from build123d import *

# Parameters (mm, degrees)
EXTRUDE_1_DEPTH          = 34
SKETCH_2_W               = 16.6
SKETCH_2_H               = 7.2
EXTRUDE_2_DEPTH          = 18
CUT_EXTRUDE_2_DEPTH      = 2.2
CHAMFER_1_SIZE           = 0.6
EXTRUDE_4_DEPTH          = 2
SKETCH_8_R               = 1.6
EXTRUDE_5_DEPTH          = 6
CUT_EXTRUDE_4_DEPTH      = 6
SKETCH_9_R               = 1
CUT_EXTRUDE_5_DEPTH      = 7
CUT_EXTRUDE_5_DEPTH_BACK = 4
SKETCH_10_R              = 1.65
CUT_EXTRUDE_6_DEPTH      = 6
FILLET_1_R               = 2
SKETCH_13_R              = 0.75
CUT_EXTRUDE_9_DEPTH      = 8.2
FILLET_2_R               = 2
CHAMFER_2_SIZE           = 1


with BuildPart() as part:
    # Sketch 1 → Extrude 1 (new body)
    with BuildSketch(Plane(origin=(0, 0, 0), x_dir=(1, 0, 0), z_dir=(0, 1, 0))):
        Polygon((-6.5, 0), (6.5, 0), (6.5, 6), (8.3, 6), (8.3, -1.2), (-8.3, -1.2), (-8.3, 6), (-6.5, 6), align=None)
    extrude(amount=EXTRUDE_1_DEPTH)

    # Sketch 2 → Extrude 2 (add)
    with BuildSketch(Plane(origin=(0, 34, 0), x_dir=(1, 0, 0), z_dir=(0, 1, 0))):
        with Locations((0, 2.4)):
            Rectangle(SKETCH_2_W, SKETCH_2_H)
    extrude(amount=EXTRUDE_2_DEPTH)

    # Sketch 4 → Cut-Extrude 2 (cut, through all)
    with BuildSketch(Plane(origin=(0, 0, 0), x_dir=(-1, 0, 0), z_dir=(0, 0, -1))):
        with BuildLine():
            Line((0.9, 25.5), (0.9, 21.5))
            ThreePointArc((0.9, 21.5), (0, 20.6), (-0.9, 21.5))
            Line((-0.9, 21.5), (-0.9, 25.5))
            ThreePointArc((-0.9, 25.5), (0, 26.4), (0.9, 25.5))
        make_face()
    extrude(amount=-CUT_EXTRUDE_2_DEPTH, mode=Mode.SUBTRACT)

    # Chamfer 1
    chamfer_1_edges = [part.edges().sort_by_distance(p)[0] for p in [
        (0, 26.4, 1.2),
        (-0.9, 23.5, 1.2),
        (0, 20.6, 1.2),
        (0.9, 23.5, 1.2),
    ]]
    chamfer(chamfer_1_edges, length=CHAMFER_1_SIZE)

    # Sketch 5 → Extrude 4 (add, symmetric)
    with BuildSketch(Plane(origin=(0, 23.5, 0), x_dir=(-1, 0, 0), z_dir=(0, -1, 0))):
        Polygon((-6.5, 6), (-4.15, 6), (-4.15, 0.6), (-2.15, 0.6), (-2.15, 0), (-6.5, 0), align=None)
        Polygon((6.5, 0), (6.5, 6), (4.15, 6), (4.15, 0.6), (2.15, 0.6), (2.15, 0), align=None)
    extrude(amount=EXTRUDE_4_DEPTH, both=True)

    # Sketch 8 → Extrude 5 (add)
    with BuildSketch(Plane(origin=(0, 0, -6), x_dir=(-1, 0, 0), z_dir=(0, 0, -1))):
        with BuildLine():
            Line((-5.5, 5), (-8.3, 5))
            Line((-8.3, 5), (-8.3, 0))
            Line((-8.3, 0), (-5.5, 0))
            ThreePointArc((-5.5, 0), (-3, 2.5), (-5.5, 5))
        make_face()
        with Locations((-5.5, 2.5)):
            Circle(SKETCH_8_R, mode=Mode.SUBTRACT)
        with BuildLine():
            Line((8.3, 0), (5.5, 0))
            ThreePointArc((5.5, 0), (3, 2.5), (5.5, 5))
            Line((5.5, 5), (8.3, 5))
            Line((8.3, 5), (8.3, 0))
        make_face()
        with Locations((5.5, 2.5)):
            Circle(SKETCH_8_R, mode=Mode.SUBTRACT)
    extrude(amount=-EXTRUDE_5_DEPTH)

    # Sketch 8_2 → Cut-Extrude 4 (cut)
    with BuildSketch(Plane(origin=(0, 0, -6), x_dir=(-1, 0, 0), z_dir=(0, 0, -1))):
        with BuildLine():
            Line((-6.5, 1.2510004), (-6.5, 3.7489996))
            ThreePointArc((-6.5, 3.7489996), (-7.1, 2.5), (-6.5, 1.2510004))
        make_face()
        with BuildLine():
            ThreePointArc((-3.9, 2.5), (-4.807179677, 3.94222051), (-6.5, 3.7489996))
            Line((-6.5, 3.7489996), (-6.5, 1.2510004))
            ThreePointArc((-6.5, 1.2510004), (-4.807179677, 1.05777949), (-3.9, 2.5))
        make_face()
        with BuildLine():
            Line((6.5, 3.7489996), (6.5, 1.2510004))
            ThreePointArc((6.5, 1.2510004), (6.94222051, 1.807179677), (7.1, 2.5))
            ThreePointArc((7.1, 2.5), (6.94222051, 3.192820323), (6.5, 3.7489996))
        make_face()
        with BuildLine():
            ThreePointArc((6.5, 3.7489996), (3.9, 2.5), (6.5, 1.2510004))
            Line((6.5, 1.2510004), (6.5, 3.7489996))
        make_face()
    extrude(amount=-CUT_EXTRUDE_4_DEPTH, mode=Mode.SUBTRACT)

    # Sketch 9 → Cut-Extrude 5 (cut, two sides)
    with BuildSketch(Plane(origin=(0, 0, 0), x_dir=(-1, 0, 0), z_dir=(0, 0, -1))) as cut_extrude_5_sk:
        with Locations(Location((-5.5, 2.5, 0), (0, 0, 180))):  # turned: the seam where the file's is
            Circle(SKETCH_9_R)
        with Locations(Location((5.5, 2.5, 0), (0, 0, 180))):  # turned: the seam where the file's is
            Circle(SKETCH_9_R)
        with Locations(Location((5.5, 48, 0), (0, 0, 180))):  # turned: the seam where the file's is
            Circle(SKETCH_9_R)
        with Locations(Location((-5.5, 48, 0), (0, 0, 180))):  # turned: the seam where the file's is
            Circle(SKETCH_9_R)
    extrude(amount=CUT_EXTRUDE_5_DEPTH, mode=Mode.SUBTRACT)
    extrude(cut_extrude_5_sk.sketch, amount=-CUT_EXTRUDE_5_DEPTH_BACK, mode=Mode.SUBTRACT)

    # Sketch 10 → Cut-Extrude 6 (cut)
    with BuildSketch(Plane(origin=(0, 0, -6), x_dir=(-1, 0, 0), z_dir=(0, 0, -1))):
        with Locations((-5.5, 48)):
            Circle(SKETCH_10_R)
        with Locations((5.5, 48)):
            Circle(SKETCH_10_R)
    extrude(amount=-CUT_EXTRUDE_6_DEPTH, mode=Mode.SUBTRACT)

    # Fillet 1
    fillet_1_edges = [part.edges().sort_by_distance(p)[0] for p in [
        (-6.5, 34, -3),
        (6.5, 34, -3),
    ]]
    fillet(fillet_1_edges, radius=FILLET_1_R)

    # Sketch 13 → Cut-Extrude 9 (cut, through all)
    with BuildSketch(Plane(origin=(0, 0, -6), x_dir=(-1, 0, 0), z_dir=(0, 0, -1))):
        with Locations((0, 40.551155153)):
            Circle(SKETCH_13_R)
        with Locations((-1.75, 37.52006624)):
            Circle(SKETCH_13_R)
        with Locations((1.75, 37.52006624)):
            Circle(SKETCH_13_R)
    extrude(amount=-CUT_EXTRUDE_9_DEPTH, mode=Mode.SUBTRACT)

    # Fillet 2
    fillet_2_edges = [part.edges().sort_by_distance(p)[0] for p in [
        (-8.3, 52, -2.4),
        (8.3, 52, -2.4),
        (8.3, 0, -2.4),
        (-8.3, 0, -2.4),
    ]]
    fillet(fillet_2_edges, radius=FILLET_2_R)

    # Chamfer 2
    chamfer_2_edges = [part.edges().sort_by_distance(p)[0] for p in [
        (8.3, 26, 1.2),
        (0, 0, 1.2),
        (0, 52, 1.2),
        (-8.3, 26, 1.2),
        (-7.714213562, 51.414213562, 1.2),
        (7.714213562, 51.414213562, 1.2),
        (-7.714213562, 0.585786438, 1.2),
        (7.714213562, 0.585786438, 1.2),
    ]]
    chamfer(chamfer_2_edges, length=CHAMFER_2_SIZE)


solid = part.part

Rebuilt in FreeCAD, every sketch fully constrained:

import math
import FreeCAD as App
import Part
import Sketcher


def edges_at(feature, points):
    """Names of the edges that pass closest to the given points."""
    edges = feature.Shape.Edges
    near = lambda p: min(range(len(edges)), key=lambda i: edges[i].distToShape(Part.Vertex(*p))[0])
    return sorted({f"Edge{near(p) + 1}" for p in points})


def add_polygon(sketch, points):
    """Adds a closed chain of lines whose ends are joined by coincident constraints."""
    first, n = sketch.GeometryCount, len(points)
    for a, b in zip(points, points[1:] + points[:1]):
        sketch.addGeometry(Part.LineSegment(App.Vector(*a, 0), App.Vector(*b, 0)), False)
    for i in range(n):
        sketch.addConstraint(Sketcher.Constraint("Coincident", first + i, 2, first + (i + 1) % n, 1))

doc = App.newDocument("Part")
body = doc.addObject("PartDesign::Body", "Body")

# Sketch on XZ plane
sketch1 = doc.addObject("Sketcher::SketchObject", "Sketch")
body.addObject(sketch1)
sketch1.AttachmentSupport = (doc.XZ_Plane, [""])
sketch1.MapMode = "FlatFace"
add_polygon(sketch1, [(6.5, 0), (-6.5, 0), (-6.5, -6), (-8.3, -6), (-8.3, 1.2), (8.3, 1.2), (8.3, -6), (6.5, -6)])  # lines 0-7
sketch1.addConstraint([
    Sketcher.Constraint("Horizontal", 0),
    Sketcher.Constraint("Vertical", 1),
    Sketcher.Constraint("Horizontal", 2),
    Sketcher.Constraint("Vertical", 3),
    Sketcher.Constraint("Horizontal", 4),
    Sketcher.Constraint("Vertical", 5),
    Sketcher.Constraint("Horizontal", 6),
    Sketcher.Constraint("Vertical", 7),
    Sketcher.Constraint("Symmetric", 0, 2, 7, 2, -1, 1),
    Sketcher.Constraint("Symmetric", 2, 2, 5, 2, -2),
    Sketcher.Constraint("DistanceX", 0, 2, 0, 1, 13.0),
    Sketcher.Constraint("DistanceY", 1, 2, 1, 1, 6.0),
    Sketcher.Constraint("DistanceX", 2, 2, 2, 1, 1.8),
    Sketcher.Constraint("DistanceY", 3, 1, 3, 2, 7.2),
])
pad1 = doc.addObject("PartDesign::Pad", "Pad")
body.addObject(pad1)
pad1.Profile = sketch1
pad1.Length = 34
pad1.Reversed = True

# Sketch on XZ plane
sketch2 = doc.addObject("Sketcher::SketchObject", "Sketch001")
body.addObject(sketch2)
sketch2.AttachmentSupport = (doc.XZ_Plane, [""])
sketch2.MapMode = "FlatFace"
sketch2.AttachmentOffset = App.Placement(App.Vector(0, 0, -34), App.Rotation())
add_polygon(sketch2, [(-8, -6), (-8, 1), (8, 1), (8, -6)])  # lines 0-3
sketch2.addConstraint([
    Sketcher.Constraint("Vertical", 0),
    Sketcher.Constraint("Horizontal", 1),
    Sketcher.Constraint("Vertical", 2),
    Sketcher.Constraint("Horizontal", 3),
    Sketcher.Constraint("DistanceX", 1, 1, 1, 2, 16.6),
    Sketcher.Constraint("DistanceY", 0, 1, 0, 2, 7.2),
    Sketcher.Constraint("DistanceY", 2, 2, -1, 1, 6.0),
    Sketcher.Constraint("DistanceX", 0, 2, -1, 1, 8.3),
])
pad2 = doc.addObject("PartDesign::Pad", "Pad001")
body.addObject(pad2)
pad2.Profile = sketch2
pad2.Length = 18
pad2.Reversed = True

# Sketch on XY plane
sketch3 = doc.addObject("Sketcher::SketchObject", "Sketch002")
body.addObject(sketch3)
sketch3.AttachmentSupport = (doc.XY_Plane, [""])
sketch3.MapMode = "FlatFace"
sketch3.addGeometry([
    Part.LineSegment(App.Vector(-0.9, 21.5, 0), App.Vector(-0.9, 25.5, 0)),
    Part.ArcOfCircle(Part.Circle(App.Vector(0, 25.5, 0), App.Vector(0, 0, 1), 0.9), math.radians(0), math.radians(180)),
    Part.LineSegment(App.Vector(0.9, 25.5, 0), App.Vector(0.9, 21.5, 0)),
    Part.ArcOfCircle(Part.Circle(App.Vector(0, 21.5, 0), App.Vector(0, 0, 1), 0.9), math.radians(180), math.radians(360)),
], False)
sketch3.addConstraint([
    Sketcher.Constraint("Tangent", 0, 2, 1, 2),
    Sketcher.Constraint("Tangent", 1, 1, 2, 1),
    Sketcher.Constraint("Tangent", 2, 2, 3, 2),
    Sketcher.Constraint("Tangent", 3, 1, 0, 1),
    Sketcher.Constraint("Vertical", 0),
    Sketcher.Constraint("Vertical", 2),
    Sketcher.Constraint("PointOnObject", 1, 3, -2),
    Sketcher.Constraint("Radius", 1, 0.9),
    Sketcher.Constraint("DistanceY", 0, 1, 0, 2, 4.0),
    Sketcher.Constraint("DistanceY", -1, 1, 1, 3, 25.5),
])
pocket1 = doc.addObject("PartDesign::Pocket", "Pocket")
body.addObject(pocket1)
pocket1.Profile = sketch3
pocket1.Type = "ThroughAll"
pocket1.Reversed = True
doc.recompute()

chamfer = doc.addObject("PartDesign::Chamfer", "Chamfer")
body.addObject(chamfer)
chamfer.Base = (pocket1, edges_at(pocket1, [
    (0, 26.4, 1.2),
    (-0.9, 23.5, 1.2),
    (0, 20.6, 1.2),
    (0.9, 23.5, 1.2),
]))
chamfer.Size = 0.6

# Sketch on XZ plane
sketch4 = doc.addObject("Sketcher::SketchObject", "Sketch003")
body.addObject(sketch4)
sketch4.AttachmentSupport = (doc.XZ_Plane, [""])
sketch4.MapMode = "FlatFace"
sketch4.AttachmentOffset = App.Placement(App.Vector(0, 0, -23.5), App.Rotation())
add_polygon(sketch4, [(4.2, -6), (6.5, -6), (6.5, 0), (2.1, 0), (2.1, -0.6), (4.2, -0.6)])  # lines 0-5
add_polygon(sketch4, [(-6.5, 0), (-6.5, -6), (-4.2, -6), (-4.2, -0.6), (-2.1, -0.6), (-2.1, 0)])  # lines 6-11
sketch4.addConstraint([
    Sketcher.Constraint("Horizontal", 0),
    Sketcher.Constraint("Vertical", 1),
    Sketcher.Constraint("Horizontal", 2),
    Sketcher.Constraint("Vertical", 3),
    Sketcher.Constraint("Horizontal", 4),
    Sketcher.Constraint("Vertical", 5),
    Sketcher.Constraint("Vertical", 6),
    Sketcher.Constraint("Horizontal", 7),
    Sketcher.Constraint("Vertical", 8),
    Sketcher.Constraint("Horizontal", 9),
    Sketcher.Constraint("Vertical", 10),
    Sketcher.Constraint("Horizontal", 11),
    Sketcher.Constraint("Symmetric", 2, 2, 10, 2, -1, 1),
    Sketcher.Constraint("Symmetric", 0, 2, 6, 2, -2),
    Sketcher.Constraint("Symmetric", 4, 2, 8, 2, -2),
    Sketcher.Constraint("PointOnObject", 1, 2, -1),
    Sketcher.Constraint("DistanceX", 4, 1, 4, 2, 2.0),
    Sketcher.Constraint("DistanceY", 1, 1, 1, 2, 6.0),
    Sketcher.Constraint("DistanceY", 3, 2, 3, 1, 0.6),
    Sketcher.Constraint("DistanceX", 6, 2, 0, 2, 13.0),
    Sketcher.Constraint("DistanceX", 0, 1, 0, 2, 2.35),
])
pad3 = doc.addObject("PartDesign::Pad", "Pad002")
body.addObject(pad3)
pad3.Profile = sketch4
pad3.Length = 4
pad3.Midplane = True

# Sketch on XY plane
sketch5 = doc.addObject("Sketcher::SketchObject", "Sketch004")
body.addObject(sketch5)
sketch5.AttachmentSupport = (doc.XY_Plane, [""])
sketch5.MapMode = "FlatFace"
sketch5.AttachmentOffset = App.Placement(App.Vector(0, 0, -6), App.Rotation())
sketch5.addGeometry([
    Part.LineSegment(App.Vector(5.5, 5, 0), App.Vector(8.3, 5, 0)),  # 0
    Part.LineSegment(App.Vector(8.3, 5, 0), App.Vector(8.3, 0, 0)),  # 1
    Part.LineSegment(App.Vector(8.3, 0, 0), App.Vector(5.5, 0, 0)),  # 2
    Part.ArcOfCircle(Part.Circle(App.Vector(5.5, 2.5, 0), App.Vector(0, 0, 1), 2.5), math.radians(90), math.radians(270)),  # 3
    Part.Circle(App.Vector(5.5, 2.5, 0), App.Vector(0, 0, 1), 1.6),  # 4
    Part.LineSegment(App.Vector(-5.5, 0, 0), App.Vector(-8.3, 0, 0)),  # 5
    Part.LineSegment(App.Vector(-8.3, 0, 0), App.Vector(-8.3, 5, 0)),  # 6
    Part.LineSegment(App.Vector(-8.3, 5, 0), App.Vector(-5.5, 5, 0)),  # 7
    Part.ArcOfCircle(Part.Circle(App.Vector(-5.5, 2.5, 0), App.Vector(0, 0, 1), 2.5), math.radians(-90), math.radians(90)),  # 8
    Part.Circle(App.Vector(-5.5, 2.5, 0), App.Vector(0, 0, 1), 1.6),  # 9
], False)
sketch5.addConstraint([
    Sketcher.Constraint("Coincident", 0, 2, 1, 1),
    Sketcher.Constraint("Coincident", 1, 2, 2, 1),
    Sketcher.Constraint("Tangent", 2, 2, 3, 2),
    Sketcher.Constraint("Tangent", 3, 1, 0, 1),
    Sketcher.Constraint("Coincident", 5, 2, 6, 1),
    Sketcher.Constraint("Coincident", 6, 2, 7, 1),
    Sketcher.Constraint("Tangent", 7, 2, 8, 2),
    Sketcher.Constraint("Tangent", 8, 1, 5, 1),
    Sketcher.Constraint("Horizontal", 0),
    Sketcher.Constraint("Vertical", 1),
    Sketcher.Constraint("Horizontal", 2),
    Sketcher.Constraint("Horizontal", 5),
    Sketcher.Constraint("Vertical", 6),
    Sketcher.Constraint("Horizontal", 7),
    Sketcher.Constraint("Coincident", 4, 3, 3, 3),
    Sketcher.Constraint("Coincident", 9, 3, 8, 3),
    Sketcher.Constraint("Equal", 3, 8),
    Sketcher.Constraint("Equal", 4, 9),
    Sketcher.Constraint("Symmetric", 1, 2, 5, 2, -1, 1),
    Sketcher.Constraint("Symmetric", 3, 3, 8, 3, -2),
    Sketcher.Constraint("Diameter", 4, 3.2),
    Sketcher.Constraint("Radius", 3, 2.5),
    Sketcher.Constraint("DistanceX", 0, 1, 0, 2, 2.8),
    Sketcher.Constraint("DistanceX", 8, 3, 3, 3, 11.0),
])
pad4 = doc.addObject("PartDesign::Pad", "Pad003")
body.addObject(pad4)
pad4.Profile = sketch5
pad4.Length = 6

# Sketch on XY plane
sketch6 = doc.addObject("Sketcher::SketchObject", "Sketch005")
body.addObject(sketch6)
sketch6.AttachmentSupport = (doc.XY_Plane, [""])
sketch6.MapMode = "FlatFace"
sketch6.AttachmentOffset = App.Placement(App.Vector(0, 0, -6), App.Rotation())
sketch6.addGeometry([
    Part.ArcOfCircle(Part.Circle(App.Vector(5.5, 2.5, 0), App.Vector(0, 0, 1), 1.6), math.radians(-51), math.radians(51)),  # 0
    Part.ArcOfCircle(Part.Circle(App.Vector(5.5, 2.5, 0), App.Vector(0, 0, 1), 1.6), math.radians(180), math.radians(309)),  # 1
    Part.ArcOfCircle(Part.Circle(App.Vector(5.5, 2.5, 0), App.Vector(0, 0, 1), 1.6), math.radians(51), math.radians(180)),  # 2
    Part.ArcOfCircle(Part.Circle(App.Vector(-5.5, 2.5, 0), App.Vector(0, 0, 1), 1.6), math.radians(-180), math.radians(-129)),  # 3
    Part.ArcOfCircle(Part.Circle(App.Vector(-5.5, 2.5, 0), App.Vector(0, 0, 1), 1.6), math.radians(129), math.radians(180)),  # 4
    Part.ArcOfCircle(Part.Circle(App.Vector(-5.5, 2.5, 0), App.Vector(0, 0, 1), 1.6), math.radians(-129), math.radians(129)),  # 5
], False)
sketch6.addConstraint([
    Sketcher.Constraint("Tangent", 0, 1, 1, 2),
    Sketcher.Constraint("Tangent", 1, 1, 2, 2),
    Sketcher.Constraint("Tangent", 2, 1, 0, 2),
    Sketcher.Constraint("Tangent", 3, 1, 4, 2),
    Sketcher.Constraint("Tangent", 4, 1, 5, 2),
    Sketcher.Constraint("Tangent", 5, 1, 3, 2),
    Sketcher.Constraint("Equal", 2, 3),
    Sketcher.Constraint("Symmetric", 0, 3, 3, 3, -2),
    Sketcher.Constraint("Horizontal", 5, 3, 1, 1),
    Sketcher.Constraint("Horizontal", 1, 1, 3, 1),
    Sketcher.Constraint("Horizontal", 2, 1, 4, 1),
    Sketcher.Constraint("Horizontal", 0, 1, 5, 1),
    Sketcher.Constraint("Vertical", 0, 1, 2, 1),
    Sketcher.Constraint("Radius", 0, 1.6),
    Sketcher.Constraint("DistanceX", 3, 3, 0, 3, 11.0),
    Sketcher.Constraint("DistanceX", 1, 3, 0, 1, 1.0),
    Sketcher.Constraint("DistanceY", -1, 1, 0, 3, 2.5),
])
pocket2 = doc.addObject("PartDesign::Pocket", "Pocket001")
body.addObject(pocket2)
pocket2.Profile = sketch6
pocket2.Length = 6
pocket2.Reversed = True

# Sketch on XY plane
sketch7 = doc.addObject("Sketcher::SketchObject", "Sketch006")
body.addObject(sketch7)
sketch7.AttachmentSupport = (doc.XY_Plane, [""])
sketch7.MapMode = "FlatFace"
sketch7.addGeometry([
    Part.Circle(App.Vector(5.5, 2.5, 0), App.Vector(0, 0, 1), 1),
    Part.Circle(App.Vector(-5.5, 2.5, 0), App.Vector(0, 0, 1), 1),
    Part.Circle(App.Vector(-5.5, 48, 0), App.Vector(0, 0, 1), 1),
    Part.Circle(App.Vector(5.5, 48, 0), App.Vector(0, 0, 1), 1),
], False)
sketch7.addConstraint([
    Sketcher.Constraint("Equal", 0, 1),
    Sketcher.Constraint("Equal", 1, 2),
    Sketcher.Constraint("Equal", 2, 3),
    Sketcher.Constraint("Symmetric", 0, 3, 1, 3, -2),
    Sketcher.Constraint("Symmetric", 2, 3, 3, 3, -2),
    Sketcher.Constraint("Vertical", 1, 3, 2, 3),
    Sketcher.Constraint("Diameter", 0, 2.0),
    Sketcher.Constraint("DistanceY", -1, 1, 2, 3, 48.0),
    Sketcher.Constraint("DistanceX", 1, 3, 0, 3, 11.0),
    Sketcher.Constraint("DistanceY", -1, 1, 0, 3, 2.5),
])
pocket3 = doc.addObject("PartDesign::Pocket", "Pocket002")
body.addObject(pocket3)
pocket3.Profile = sketch7
pocket3.Type = "ThroughAll"
pocket3.Midplane = True

# Sketch on XY plane
sketch8 = doc.addObject("Sketcher::SketchObject", "Sketch007")
body.addObject(sketch8)
sketch8.AttachmentSupport = (doc.XY_Plane, [""])
sketch8.MapMode = "FlatFace"
sketch8.AttachmentOffset = App.Placement(App.Vector(0, 0, -6), App.Rotation())
sketch8.addGeometry([
    Part.Circle(App.Vector(5.5, 48, 0), App.Vector(0, 0, 1), 1.6),
    Part.Circle(App.Vector(-5.5, 48, 0), App.Vector(0, 0, 1), 1.6),
], False)
sketch8.addConstraint([
    Sketcher.Constraint("Equal", 0, 1),
    Sketcher.Constraint("Symmetric", 0, 3, 1, 3, -2),
    Sketcher.Constraint("Diameter", 0, 3.3),
    Sketcher.Constraint("DistanceY", -1, 1, 0, 3, 48.0),
    Sketcher.Constraint("DistanceX", 1, 3, 0, 3, 11.0),
])
pocket4 = doc.addObject("PartDesign::Pocket", "Pocket003")
body.addObject(pocket4)
pocket4.Profile = sketch8
pocket4.Length = 6
pocket4.Reversed = True
doc.recompute()

fillet = doc.addObject("PartDesign::Fillet", "Fillet")
body.addObject(fillet)
fillet.Base = (pocket4, edges_at(pocket4, [(-6.5, 34, -3), (6.5, 34, -3)]))
fillet.Radius = 2

# Sketch on XY plane
sketch9 = doc.addObject("Sketcher::SketchObject", "Sketch008")
body.addObject(sketch9)
sketch9.AttachmentSupport = (doc.XY_Plane, [""])
sketch9.MapMode = "FlatFace"
sketch9.AttachmentOffset = App.Placement(App.Vector(0, 0, -6), App.Rotation())
sketch9.addGeometry([
    Part.Circle(App.Vector(0, 40.6, 0), App.Vector(0, 0, 1), 0.8),
    Part.Circle(App.Vector(1.8, 37.5, 0), App.Vector(0, 0, 1), 0.8),
    Part.Circle(App.Vector(-1.8, 37.5, 0), App.Vector(0, 0, 1), 0.8),
], False)
sketch9.addConstraint([
    Sketcher.Constraint("Equal", 0, 1),
    Sketcher.Constraint("Equal", 1, 2),
    Sketcher.Constraint("Symmetric", 1, 3, 2, 3, -2),
    Sketcher.Constraint("PointOnObject", 0, 3, -2),
    Sketcher.Constraint("Diameter", 0, 1.5),
    Sketcher.Constraint("DistanceX", 2, 3, 1, 3, 3.5),
    Sketcher.Constraint("DistanceY", 1, 3, 0, 3, 3.031089),
    Sketcher.Constraint("DistanceY", -1, 1, 0, 3, 40.551155),
])
pocket5 = doc.addObject("PartDesign::Pocket", "Pocket004")
body.addObject(pocket5)
pocket5.Profile = sketch9
pocket5.Type = "ThroughAll"
pocket5.Reversed = True
doc.recompute()

fillet2 = doc.addObject("PartDesign::Fillet", "Fillet001")
body.addObject(fillet2)
fillet2.Base = (pocket5, edges_at(pocket5, [
    (-8.3, 52, -2.4),
    (8.3, 52, -2.4),
    (8.3, 0, -2.4),
    (-8.3, 0, -2.4),
]))
fillet2.Radius = 2
doc.recompute()

chamfer2 = doc.addObject("PartDesign::Chamfer", "Chamfer001")
body.addObject(chamfer2)
chamfer2.Base = (fillet2, edges_at(fillet2, [
    (8.3, 26, 1.2),
    (0, 0, 1.2),
    (0, 52, 1.2),
    (-8.3, 26, 1.2),
    (-7.714, 51.414, 1.2),
    (7.714, 51.414, 1.2),
    (-7.714, 0.586, 1.2),
    (7.714, 0.586, 1.2),
]))
chamfer2.Size = 1

doc.recompute()
